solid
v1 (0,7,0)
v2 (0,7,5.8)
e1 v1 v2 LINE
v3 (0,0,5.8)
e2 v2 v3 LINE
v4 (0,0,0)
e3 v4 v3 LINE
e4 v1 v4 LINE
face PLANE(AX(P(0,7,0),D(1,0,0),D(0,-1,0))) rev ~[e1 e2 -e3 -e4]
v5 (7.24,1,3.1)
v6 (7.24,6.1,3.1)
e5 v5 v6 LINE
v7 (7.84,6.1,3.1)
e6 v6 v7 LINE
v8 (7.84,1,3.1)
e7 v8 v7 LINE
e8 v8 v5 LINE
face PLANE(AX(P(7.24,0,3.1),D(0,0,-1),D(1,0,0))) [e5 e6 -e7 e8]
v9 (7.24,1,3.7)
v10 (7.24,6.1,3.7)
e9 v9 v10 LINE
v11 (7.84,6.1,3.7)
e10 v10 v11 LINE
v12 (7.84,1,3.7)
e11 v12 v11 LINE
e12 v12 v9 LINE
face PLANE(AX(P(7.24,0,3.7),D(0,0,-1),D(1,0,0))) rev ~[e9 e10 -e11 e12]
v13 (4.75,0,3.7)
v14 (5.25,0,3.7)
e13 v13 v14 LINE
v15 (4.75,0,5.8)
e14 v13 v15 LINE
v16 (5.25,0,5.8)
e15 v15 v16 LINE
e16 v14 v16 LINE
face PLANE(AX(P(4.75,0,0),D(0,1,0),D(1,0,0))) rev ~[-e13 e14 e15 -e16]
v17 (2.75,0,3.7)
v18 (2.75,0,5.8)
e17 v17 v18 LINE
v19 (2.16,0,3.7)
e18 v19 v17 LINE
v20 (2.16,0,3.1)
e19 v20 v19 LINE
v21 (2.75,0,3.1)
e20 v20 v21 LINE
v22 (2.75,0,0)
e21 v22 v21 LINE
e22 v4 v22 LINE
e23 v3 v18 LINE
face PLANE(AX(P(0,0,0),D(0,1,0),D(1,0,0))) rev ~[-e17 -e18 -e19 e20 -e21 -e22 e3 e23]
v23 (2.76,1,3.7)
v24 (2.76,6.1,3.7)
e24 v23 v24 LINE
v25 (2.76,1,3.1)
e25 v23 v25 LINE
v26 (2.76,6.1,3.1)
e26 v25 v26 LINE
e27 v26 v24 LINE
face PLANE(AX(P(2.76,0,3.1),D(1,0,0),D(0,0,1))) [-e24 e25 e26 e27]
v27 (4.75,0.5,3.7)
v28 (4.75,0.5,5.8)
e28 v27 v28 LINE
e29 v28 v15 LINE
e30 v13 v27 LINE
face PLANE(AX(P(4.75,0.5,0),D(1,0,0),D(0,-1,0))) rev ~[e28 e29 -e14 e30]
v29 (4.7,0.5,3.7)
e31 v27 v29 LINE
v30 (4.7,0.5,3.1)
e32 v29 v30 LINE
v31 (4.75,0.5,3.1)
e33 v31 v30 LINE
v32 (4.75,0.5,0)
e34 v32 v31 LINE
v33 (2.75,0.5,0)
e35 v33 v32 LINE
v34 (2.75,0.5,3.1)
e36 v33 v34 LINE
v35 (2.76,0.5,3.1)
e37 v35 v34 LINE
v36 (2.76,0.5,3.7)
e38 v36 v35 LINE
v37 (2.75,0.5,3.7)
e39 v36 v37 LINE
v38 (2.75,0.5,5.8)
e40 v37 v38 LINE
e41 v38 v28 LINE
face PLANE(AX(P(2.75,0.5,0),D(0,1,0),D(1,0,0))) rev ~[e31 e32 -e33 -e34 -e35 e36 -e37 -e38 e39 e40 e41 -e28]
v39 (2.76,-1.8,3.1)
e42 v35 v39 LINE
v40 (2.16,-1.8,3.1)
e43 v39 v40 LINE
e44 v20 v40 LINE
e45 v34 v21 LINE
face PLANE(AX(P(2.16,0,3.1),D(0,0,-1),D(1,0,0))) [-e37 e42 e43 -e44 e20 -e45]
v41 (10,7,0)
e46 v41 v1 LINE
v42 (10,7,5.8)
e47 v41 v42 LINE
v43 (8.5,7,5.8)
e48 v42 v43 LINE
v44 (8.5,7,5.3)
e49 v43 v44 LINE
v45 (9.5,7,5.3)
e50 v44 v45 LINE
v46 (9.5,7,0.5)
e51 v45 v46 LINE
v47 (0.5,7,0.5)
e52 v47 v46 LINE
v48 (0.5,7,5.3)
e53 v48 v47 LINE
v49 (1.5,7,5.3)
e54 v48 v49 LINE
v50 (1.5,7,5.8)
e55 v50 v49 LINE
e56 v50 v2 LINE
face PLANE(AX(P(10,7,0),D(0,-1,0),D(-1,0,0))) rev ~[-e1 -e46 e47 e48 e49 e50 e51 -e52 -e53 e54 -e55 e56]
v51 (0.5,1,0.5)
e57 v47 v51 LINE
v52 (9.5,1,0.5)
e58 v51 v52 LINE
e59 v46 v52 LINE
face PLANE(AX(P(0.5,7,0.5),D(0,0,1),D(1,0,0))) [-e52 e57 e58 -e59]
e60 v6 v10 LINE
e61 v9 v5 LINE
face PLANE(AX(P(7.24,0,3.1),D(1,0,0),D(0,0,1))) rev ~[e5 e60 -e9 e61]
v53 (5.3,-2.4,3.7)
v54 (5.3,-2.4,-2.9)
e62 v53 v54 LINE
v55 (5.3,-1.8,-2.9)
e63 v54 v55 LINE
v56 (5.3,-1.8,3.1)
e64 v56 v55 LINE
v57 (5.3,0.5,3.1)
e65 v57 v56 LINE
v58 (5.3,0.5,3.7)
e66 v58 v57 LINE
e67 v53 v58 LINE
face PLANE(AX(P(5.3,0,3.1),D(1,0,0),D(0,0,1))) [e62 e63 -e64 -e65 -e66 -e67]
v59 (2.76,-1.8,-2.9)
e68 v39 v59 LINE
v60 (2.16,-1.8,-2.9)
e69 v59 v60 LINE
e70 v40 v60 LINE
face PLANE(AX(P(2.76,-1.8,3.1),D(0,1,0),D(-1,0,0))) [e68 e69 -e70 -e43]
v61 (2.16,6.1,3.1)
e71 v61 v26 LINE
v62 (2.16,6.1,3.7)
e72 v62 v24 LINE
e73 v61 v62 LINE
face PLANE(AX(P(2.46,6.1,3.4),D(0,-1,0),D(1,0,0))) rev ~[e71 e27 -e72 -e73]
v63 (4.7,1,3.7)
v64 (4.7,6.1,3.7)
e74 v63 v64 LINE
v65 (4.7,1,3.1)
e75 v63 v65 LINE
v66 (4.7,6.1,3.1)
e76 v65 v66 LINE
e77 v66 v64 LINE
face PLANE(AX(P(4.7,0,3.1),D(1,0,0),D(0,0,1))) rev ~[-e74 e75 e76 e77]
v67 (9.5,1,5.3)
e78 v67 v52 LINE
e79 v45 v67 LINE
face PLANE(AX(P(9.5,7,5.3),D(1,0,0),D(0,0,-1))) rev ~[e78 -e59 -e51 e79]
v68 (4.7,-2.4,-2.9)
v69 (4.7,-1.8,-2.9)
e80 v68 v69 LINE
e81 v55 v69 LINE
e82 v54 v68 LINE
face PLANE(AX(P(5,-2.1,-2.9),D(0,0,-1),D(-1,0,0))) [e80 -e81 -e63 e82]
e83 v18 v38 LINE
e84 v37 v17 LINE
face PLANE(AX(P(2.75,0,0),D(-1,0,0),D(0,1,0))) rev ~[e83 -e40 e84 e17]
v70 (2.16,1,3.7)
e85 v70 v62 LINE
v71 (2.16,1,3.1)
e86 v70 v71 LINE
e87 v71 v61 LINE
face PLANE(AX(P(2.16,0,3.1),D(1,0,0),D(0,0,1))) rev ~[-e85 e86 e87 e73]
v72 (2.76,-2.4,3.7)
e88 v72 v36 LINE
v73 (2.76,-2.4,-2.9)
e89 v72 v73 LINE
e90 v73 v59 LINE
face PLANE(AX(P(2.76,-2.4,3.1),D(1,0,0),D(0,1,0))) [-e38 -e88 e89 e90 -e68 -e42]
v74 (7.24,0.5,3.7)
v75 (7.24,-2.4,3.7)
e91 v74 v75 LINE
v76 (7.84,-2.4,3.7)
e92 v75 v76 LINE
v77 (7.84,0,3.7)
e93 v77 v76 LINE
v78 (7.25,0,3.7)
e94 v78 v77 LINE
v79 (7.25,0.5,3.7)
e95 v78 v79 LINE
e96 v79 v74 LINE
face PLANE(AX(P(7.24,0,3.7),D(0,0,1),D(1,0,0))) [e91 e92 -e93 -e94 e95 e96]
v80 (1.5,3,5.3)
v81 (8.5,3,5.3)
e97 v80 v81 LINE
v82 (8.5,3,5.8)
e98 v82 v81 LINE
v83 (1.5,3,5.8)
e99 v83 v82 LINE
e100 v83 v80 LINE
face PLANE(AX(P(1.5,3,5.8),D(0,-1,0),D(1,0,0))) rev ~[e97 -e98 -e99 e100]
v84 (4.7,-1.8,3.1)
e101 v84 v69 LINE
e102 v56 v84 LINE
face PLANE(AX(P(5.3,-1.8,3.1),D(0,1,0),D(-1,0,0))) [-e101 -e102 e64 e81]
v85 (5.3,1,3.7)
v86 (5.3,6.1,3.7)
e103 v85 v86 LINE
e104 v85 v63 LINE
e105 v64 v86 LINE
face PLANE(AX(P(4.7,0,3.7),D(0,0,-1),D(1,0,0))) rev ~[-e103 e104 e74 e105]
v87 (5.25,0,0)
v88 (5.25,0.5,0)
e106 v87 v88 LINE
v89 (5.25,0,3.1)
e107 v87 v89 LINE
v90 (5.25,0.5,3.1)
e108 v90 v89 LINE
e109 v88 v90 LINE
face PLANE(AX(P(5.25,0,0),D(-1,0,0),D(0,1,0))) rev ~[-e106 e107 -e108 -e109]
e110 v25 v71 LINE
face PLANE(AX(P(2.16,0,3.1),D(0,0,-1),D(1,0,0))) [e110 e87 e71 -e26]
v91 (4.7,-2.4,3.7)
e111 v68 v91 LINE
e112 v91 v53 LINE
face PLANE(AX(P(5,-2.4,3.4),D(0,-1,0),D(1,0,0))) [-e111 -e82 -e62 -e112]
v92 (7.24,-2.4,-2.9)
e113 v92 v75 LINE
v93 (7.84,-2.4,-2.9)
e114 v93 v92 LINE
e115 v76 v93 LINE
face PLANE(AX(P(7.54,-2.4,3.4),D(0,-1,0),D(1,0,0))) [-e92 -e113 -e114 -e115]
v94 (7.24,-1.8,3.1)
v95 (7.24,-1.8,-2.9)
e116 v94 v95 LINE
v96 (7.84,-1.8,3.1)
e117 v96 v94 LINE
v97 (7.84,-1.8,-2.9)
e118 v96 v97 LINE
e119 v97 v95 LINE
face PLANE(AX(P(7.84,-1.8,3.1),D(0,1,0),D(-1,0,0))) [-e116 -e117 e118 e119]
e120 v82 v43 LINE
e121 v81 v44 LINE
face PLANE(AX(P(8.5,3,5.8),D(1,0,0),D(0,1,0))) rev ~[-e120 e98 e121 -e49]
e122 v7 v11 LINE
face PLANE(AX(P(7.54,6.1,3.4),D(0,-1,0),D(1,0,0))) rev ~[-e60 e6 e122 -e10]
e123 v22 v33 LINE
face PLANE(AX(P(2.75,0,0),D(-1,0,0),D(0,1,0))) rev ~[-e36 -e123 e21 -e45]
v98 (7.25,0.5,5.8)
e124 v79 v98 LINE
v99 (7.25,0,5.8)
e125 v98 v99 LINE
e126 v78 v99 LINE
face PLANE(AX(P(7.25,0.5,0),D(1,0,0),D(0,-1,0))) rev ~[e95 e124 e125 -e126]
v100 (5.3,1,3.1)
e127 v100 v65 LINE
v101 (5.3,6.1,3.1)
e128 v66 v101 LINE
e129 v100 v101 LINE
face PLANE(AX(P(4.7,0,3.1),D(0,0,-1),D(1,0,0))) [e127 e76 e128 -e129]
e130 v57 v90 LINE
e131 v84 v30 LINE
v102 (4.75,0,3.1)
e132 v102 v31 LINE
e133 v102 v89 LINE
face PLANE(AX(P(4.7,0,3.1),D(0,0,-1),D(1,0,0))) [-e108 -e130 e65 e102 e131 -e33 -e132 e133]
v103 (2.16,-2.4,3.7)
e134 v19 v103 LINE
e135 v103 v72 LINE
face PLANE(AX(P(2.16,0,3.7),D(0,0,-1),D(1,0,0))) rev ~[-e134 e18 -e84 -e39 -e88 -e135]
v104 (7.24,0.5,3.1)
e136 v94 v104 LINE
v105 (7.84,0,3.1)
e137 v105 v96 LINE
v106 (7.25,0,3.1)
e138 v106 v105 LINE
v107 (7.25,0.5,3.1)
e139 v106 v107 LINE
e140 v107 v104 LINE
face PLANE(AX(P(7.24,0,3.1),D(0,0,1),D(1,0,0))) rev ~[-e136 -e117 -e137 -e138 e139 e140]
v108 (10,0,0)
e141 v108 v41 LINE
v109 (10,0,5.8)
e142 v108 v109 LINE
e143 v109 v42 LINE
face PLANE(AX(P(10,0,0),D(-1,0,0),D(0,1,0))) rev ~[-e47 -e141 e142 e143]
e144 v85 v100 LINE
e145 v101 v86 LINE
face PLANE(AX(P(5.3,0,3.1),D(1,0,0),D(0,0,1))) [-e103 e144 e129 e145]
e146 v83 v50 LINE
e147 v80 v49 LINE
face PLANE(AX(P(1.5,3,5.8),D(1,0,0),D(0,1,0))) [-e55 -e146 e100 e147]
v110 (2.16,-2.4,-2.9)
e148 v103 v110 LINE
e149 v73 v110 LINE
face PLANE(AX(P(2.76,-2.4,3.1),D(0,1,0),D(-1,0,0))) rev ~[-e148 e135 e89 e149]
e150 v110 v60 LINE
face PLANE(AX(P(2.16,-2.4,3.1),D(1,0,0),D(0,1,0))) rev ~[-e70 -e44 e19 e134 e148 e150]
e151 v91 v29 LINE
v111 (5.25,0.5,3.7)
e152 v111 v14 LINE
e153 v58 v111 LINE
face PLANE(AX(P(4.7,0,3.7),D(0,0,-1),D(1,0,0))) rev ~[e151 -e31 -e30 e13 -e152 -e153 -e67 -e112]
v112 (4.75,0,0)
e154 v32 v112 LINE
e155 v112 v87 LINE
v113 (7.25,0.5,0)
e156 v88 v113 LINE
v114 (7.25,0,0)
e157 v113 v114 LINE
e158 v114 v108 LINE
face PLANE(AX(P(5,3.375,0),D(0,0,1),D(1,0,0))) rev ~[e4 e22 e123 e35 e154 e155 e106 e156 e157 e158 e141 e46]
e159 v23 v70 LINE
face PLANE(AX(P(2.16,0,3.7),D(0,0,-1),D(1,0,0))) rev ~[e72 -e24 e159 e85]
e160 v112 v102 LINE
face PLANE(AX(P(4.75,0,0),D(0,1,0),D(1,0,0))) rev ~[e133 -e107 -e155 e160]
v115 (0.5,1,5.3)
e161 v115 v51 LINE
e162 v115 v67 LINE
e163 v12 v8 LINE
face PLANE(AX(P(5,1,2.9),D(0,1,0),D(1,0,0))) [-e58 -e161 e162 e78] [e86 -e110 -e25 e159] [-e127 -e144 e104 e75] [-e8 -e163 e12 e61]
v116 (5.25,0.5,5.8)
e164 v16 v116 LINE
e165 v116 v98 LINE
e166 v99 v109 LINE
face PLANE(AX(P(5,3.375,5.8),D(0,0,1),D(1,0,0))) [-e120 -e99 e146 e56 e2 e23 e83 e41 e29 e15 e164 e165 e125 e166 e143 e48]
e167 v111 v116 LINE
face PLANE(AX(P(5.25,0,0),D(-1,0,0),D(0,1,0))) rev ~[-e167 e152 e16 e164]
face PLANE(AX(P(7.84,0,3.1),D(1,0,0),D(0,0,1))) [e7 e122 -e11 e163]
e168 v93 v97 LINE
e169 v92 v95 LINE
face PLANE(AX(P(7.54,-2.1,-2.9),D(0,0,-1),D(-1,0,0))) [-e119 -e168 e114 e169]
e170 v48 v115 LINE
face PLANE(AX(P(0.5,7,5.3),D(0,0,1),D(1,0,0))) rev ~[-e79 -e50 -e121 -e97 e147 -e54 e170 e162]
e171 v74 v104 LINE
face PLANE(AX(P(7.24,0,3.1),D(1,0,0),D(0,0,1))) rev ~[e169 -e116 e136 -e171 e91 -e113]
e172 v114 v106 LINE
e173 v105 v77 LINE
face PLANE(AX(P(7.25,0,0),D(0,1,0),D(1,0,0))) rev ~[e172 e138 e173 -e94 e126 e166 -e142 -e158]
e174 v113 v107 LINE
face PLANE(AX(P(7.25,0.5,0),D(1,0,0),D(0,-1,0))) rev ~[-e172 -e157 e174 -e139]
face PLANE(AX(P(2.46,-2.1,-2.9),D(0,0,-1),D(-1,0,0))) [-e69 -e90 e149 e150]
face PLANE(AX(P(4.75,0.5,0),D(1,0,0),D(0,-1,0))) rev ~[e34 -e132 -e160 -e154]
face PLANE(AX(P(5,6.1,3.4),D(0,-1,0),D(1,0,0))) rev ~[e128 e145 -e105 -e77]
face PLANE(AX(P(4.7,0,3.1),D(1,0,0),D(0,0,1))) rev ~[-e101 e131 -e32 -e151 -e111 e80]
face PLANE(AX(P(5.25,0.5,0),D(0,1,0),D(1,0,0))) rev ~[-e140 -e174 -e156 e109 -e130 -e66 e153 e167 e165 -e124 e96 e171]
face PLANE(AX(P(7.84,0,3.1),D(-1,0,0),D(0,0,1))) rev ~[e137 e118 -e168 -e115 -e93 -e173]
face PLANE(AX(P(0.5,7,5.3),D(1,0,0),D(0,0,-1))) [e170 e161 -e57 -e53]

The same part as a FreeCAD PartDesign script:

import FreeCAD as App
import Part
import Sketcher

doc = App.newDocument("Part")
body = doc.addObject("PartDesign::Body", "Body")

# Sketch on XY plane
sketch1 = doc.addObject("Sketcher::SketchObject", "Sketch")
body.addObject(sketch1)
sketch1.AttachmentSupport = (doc.XY_Plane, [""])
sketch1.MapMode = "FlatFace"
sketch1.addGeometry([
    Part.LineSegment(App.Vector(2.75, 0, 0), App.Vector(2.75, 0.5, 0)),  # 0
    Part.LineSegment(App.Vector(2.75, 0.5, 0), App.Vector(4.75, 0.5, 0)),  # 1
    Part.LineSegment(App.Vector(4.75, 0.5, 0), App.Vector(4.75, 0, 0)),  # 2
    Part.LineSegment(App.Vector(4.75, 0, 0), App.Vector(5.25, 0, 0)),  # 3
    Part.LineSegment(App.Vector(5.25, 0, 0), App.Vector(5.25, 0.5, 0)),  # 4
    Part.LineSegment(App.Vector(5.25, 0.5, 0), App.Vector(7.25, 0.5, 0)),  # 5
    Part.LineSegment(App.Vector(7.25, 0.5, 0), App.Vector(7.25, 0, 0)),  # 6
    Part.LineSegment(App.Vector(7.25, 0, 0), App.Vector(10, 0, 0)),  # 7
    Part.LineSegment(App.Vector(10, 0, 0), App.Vector(10, 7, 0)),  # 8
    Part.LineSegment(App.Vector(10, 7, 0), App.Vector(0, 7, 0)),  # 9
    Part.LineSegment(App.Vector(0, 7, 0), App.Vector(0, 0, 0)),  # 10
    Part.LineSegment(App.Vector(0, 0, 0), App.Vector(2.75, 0, 0)),  # 11
], False)
sketch1.addConstraint([
    Sketcher.Constraint("Coincident", 0, 2, 1, 1),
    Sketcher.Constraint("Coincident", 1, 2, 2, 1),
    Sketcher.Constraint("Coincident", 2, 2, 3, 1),
    Sketcher.Constraint("Coincident", 3, 2, 4, 1),
    Sketcher.Constraint("Coincident", 4, 2, 5, 1),
    Sketcher.Constraint("Coincident", 5, 2, 6, 1),
    Sketcher.Constraint("Coincident", 6, 2, 7, 1),
    Sketcher.Constraint("Coincident", 7, 2, 8, 1),
    Sketcher.Constraint("Coincident", 8, 2, 9, 1),
    Sketcher.Constraint("Coincident", 9, 2, 10, 1),
    Sketcher.Constraint("Coincident", 10, 2, 11, 1),
    Sketcher.Constraint("Coincident", 11, 2, 0, 1),
    Sketcher.Constraint("Vertical", 0),
    Sketcher.Constraint("Horizontal", 1),
    Sketcher.Constraint("Vertical", 2),
    Sketcher.Constraint("Horizontal", 3),
    Sketcher.Constraint("Vertical", 4),
    Sketcher.Constraint("Horizontal", 5),
    Sketcher.Constraint("Vertical", 6),
    Sketcher.Constraint("Horizontal", 7),
    Sketcher.Constraint("Vertical", 8),
    Sketcher.Constraint("Horizontal", 9),
    Sketcher.Constraint("Vertical", 10),
    Sketcher.Constraint("Horizontal", 11),
    Sketcher.Constraint("Coincident", 10, 2, -1, 1),
    Sketcher.Constraint("PointOnObject", 2, 2, -1),
    Sketcher.Constraint("PointOnObject", 6, 2, -1),
    Sketcher.Constraint("Horizontal", 1, 2, 4, 2),
    Sketcher.Constraint("Equal", 1, 5),
    Sketcher.Constraint("Equal", 7, 11),
    Sketcher.Constraint("Equal", 3, 0),
    Sketcher.Constraint("DistanceX", 1, 1, 1, 2, 2.0),
    Sketcher.Constraint("DistanceX", 9, 2, 9, 1, 10.0),
    Sketcher.Constraint("DistanceY", 8, 1, 8, 2, 7.0),
    Sketcher.Constraint("DistanceX", 3, 1, 3, 2, 0.5),
])
pad1 = doc.addObject("PartDesign::Pad", "Pad")
body.addObject(pad1)
pad1.Profile = sketch1
pad1.Length = 5.8

# Sketch on XZ plane
sketch2 = doc.addObject("Sketcher::SketchObject", "Sketch001")
body.addObject(sketch2)
sketch2.AttachmentSupport = (doc.XZ_Plane, [""])
sketch2.MapMode = "FlatFace"
sketch2.AttachmentOffset = App.Placement(App.Vector(0, 0, -7), App.Rotation())
sketch2.addGeometry([
    Part.LineSegment(App.Vector(0.5, 0.5, 0), App.Vector(0.5, 5.3, 0)),
    Part.LineSegment(App.Vector(0.5, 5.3, 0), App.Vector(9.5, 5.3, 0)),
    Part.LineSegment(App.Vector(9.5, 5.3, 0), App.Vector(9.5, 0.5, 0)),
    Part.LineSegment(App.Vector(9.5, 0.5, 0), App.Vector(0.5, 0.5, 0)),
], False)
sketch2.addConstraint([
    Sketcher.Constraint("Coincident", 0, 2, 1, 1),
    Sketcher.Constraint("Coincident", 1, 2, 2, 1),
    Sketcher.Constraint("Coincident", 2, 2, 3, 1),
    Sketcher.Constraint("Coincident", 3, 2, 0, 1),
    Sketcher.Constraint("Vertical", 0),
    Sketcher.Constraint("Horizontal", 1),
    Sketcher.Constraint("Vertical", 2),
    Sketcher.Constraint("Horizontal", 3),
    Sketcher.Constraint("DistanceX", 1, 1, 1, 2, 9.0),
    Sketcher.Constraint("DistanceY", 0, 1, 0, 2, 4.8),
    Sketcher.Constraint("DistanceX", -1, 1, 0, 2, 0.5),
    Sketcher.Constraint("DistanceY", -1, 1, 0, 2, 5.3),
])
pocket1 = doc.addObject("PartDesign::Pocket", "Pocket")
body.addObject(pocket1)
pocket1.Profile = sketch2
pocket1.Length = 6
pocket1.Reversed = True

# Sketch on XZ plane
sketch3 = doc.addObject("Sketcher::SketchObject", "Sketch002")
body.addObject(sketch3)
sketch3.AttachmentSupport = (doc.XZ_Plane, [""])
sketch3.MapMode = "FlatFace"
sketch3.addGeometry([
    Part.LineSegment(App.Vector(2.16, 3.7, 0), App.Vector(2.16, 3.1, 0)),  # 0
    Part.LineSegment(App.Vector(2.16, 3.1, 0), App.Vector(2.76, 3.1, 0)),  # 1
    Part.LineSegment(App.Vector(2.76, 3.1, 0), App.Vector(2.76, 3.7, 0)),  # 2
    Part.LineSegment(App.Vector(2.76, 3.7, 0), App.Vector(2.16, 3.7, 0)),  # 3
    Part.LineSegment(App.Vector(4.7, 3.7, 0), App.Vector(4.7, 3.1, 0)),  # 4
    Part.LineSegment(App.Vector(4.7, 3.1, 0), App.Vector(5.3, 3.1, 0)),  # 5
    Part.LineSegment(App.Vector(5.3, 3.1, 0), App.Vector(5.3, 3.7, 0)),  # 6
    Part.LineSegment(App.Vector(5.3, 3.7, 0), App.Vector(4.7, 3.7, 0)),  # 7
    Part.LineSegment(App.Vector(7.24, 3.7, 0), App.Vector(7.24, 3.1, 0)),  # 8
    Part.LineSegment(App.Vector(7.24, 3.1, 0), App.Vector(7.84, 3.1, 0)),  # 9
    Part.LineSegment(App.Vector(7.84, 3.1, 0), App.Vector(7.84, 3.7, 0)),  # 10
    Part.LineSegment(App.Vector(7.84, 3.7, 0), App.Vector(7.24, 3.7, 0)),  # 11
], False)
sketch3.addConstraint([
    Sketcher.Constraint("Coincident", 0, 2, 1, 1),
    Sketcher.Constraint("Coincident", 1, 2, 2, 1),
    Sketcher.Constraint("Coincident", 2, 2, 3, 1),
    Sketcher.Constraint("Coincident", 3, 2, 0, 1),
    Sketcher.Constraint("Coincident", 4, 2, 5, 1),
    Sketcher.Constraint("Coincident", 5, 2, 6, 1),
    Sketcher.Constraint("Coincident", 6, 2, 7, 1),
    Sketcher.Constraint("Coincident", 7, 2, 4, 1),
    Sketcher.Constraint("Coincident", 8, 2, 9, 1),
    Sketcher.Constraint("Coincident", 9, 2, 10, 1),
    Sketcher.Constraint("Coincident", 10, 2, 11, 1),
    Sketcher.Constraint("Coincident", 11, 2, 8, 1),
    Sketcher.Constraint("Vertical", 0),
    Sketcher.Constraint("Horizontal", 1),
    Sketcher.Constraint("Vertical", 2),
    Sketcher.Constraint("Horizontal", 3),
    Sketcher.Constraint("Vertical", 4),
    Sketcher.Constraint("Horizontal", 5),
    Sketcher.Constraint("Vertical", 6),
    Sketcher.Constraint("Horizontal", 7),
    Sketcher.Constraint("Vertical", 8),
    Sketcher.Constraint("Horizontal", 9),
    Sketcher.Constraint("Vertical", 10),
    Sketcher.Constraint("Horizontal", 11),
    Sketcher.Constraint("Horizontal", 1, 2, 4, 2),
    Sketcher.Constraint("Horizontal", 3, 2, 6, 2),
    Sketcher.Constraint("Horizontal", 5, 2, 8, 2),
    Sketcher.Constraint("Horizontal", 7, 2, 10, 2),
    Sketcher.Constraint("Equal", 3, 5),
    Sketcher.Constraint("Equal", 7, 9),
    Sketcher.Constraint("Equal", 11, 0),
    Sketcher.Constraint("DistanceX", 1, 1, 1, 2, 0.6),
    Sketcher.Constraint("DistanceY", -1, 1, 0, 2, 3.1),
    Sketcher.Constraint("DistanceX", -1, 1, 4, 2, 4.7),
    Sketcher.Constraint("DistanceX", -1, 1, 0, 2, 2.16),
    Sketcher.Constraint("DistanceX", -1, 1, 8, 2, 7.24),
])
pad2 = doc.addObject("PartDesign::Pad", "Pad001")
body.addObject(pad2)
pad2.Profile = sketch3
pad2.Type = "TwoLengths"
pad2.Length = 2.4
pad2.Length2 = 6.1

# Sketch on XY plane
sketch4 = doc.addObject("Sketcher::SketchObject", "Sketch003")
body.addObject(sketch4)
sketch4.AttachmentSupport = (doc.XY_Plane, [""])
sketch4.MapMode = "FlatFace"
sketch4.AttachmentOffset = App.Placement(App.Vector(0, 0, 5.8), App.Rotation())
sketch4.addGeometry([
    Part.LineSegment(App.Vector(1.5, 7, 0), App.Vector(1.5, 3, 0)),
    Part.LineSegment(App.Vector(1.5, 3, 0), App.Vector(8.5, 3, 0)),
    Part.LineSegment(App.Vector(8.5, 3, 0), App.Vector(8.5, 7, 0)),
    Part.LineSegment(App.Vector(8.5, 7, 0), App.Vector(1.5, 7, 0)),
], False)
sketch4.addConstraint([
    Sketcher.Constraint("Coincident", 0, 2, 1, 1),
    Sketcher.Constraint("Coincident", 1, 2, 2, 1),
    Sketcher.Constraint("Coincident", 2, 2, 3, 1),
    Sketcher.Constraint("Coincident", 3, 2, 0, 1),
    Sketcher.Constraint("Vertical", 0),
    Sketcher.Constraint("Horizontal", 1),
    Sketcher.Constraint("Vertical", 2),
    Sketcher.Constraint("Horizontal", 3),
    Sketcher.Constraint("DistanceX", 1, 1, 1, 2, 7.0),
    Sketcher.Constraint("DistanceY", 0, 2, 0, 1, 4.0),
    Sketcher.Constraint("DistanceY", -1, 1, 0, 2, 3.0),
    Sketcher.Constraint("DistanceX", -1, 1, 0, 2, 1.5),
])
pocket2 = doc.addObject("PartDesign::Pocket", "Pocket001")
body.addObject(pocket2)
pocket2.Profile = sketch4
pocket2.Length = 1

# Sketch on XY plane
sketch5 = doc.addObject("Sketcher::SketchObject", "Sketch004")
body.addObject(sketch5)
sketch5.AttachmentSupport = (doc.XY_Plane, [""])
sketch5.MapMode = "FlatFace"
sketch5.AttachmentOffset = App.Placement(App.Vector(0, 0, 3.1), App.Rotation())
sketch5.addGeometry([
    Part.LineSegment(App.Vector(2.76, -1.8, 0), App.Vector(2.76, -2.4, 0)),  # 0
    Part.LineSegment(App.Vector(2.76, -2.4, 0), App.Vector(2.16, -2.4, 0)),  # 1
    Part.LineSegment(App.Vector(2.16, -2.4, 0), App.Vector(2.16, -1.8, 0)),  # 2
    Part.LineSegment(App.Vector(2.16, -1.8, 0), App.Vector(2.76, -1.8, 0)),  # 3
    Part.LineSegment(App.Vector(5.3, -1.8, 0), App.Vector(5.3, -2.4, 0)),  # 4
    Part.LineSegment(App.Vector(5.3, -2.4, 0), App.Vector(4.7, -2.4, 0)),  # 5
    Part.LineSegment(App.Vector(4.7, -2.4, 0), App.Vector(4.7, -1.8, 0)),  # 6
    Part.LineSegment(App.Vector(4.7, -1.8, 0), App.Vector(5.3, -1.8, 0)),  # 7
    Part.LineSegment(App.Vector(7.84, -1.8, 0), App.Vector(7.84, -2.4, 0)),  # 8
    Part.LineSegment(App.Vector(7.84, -2.4, 0), App.Vector(7.24, -2.4, 0)),  # 9
    Part.LineSegment(App.Vector(7.24, -2.4, 0), App.Vector(7.24, -1.8, 0)),  # 10
    Part.LineSegment(App.Vector(7.24, -1.8, 0), App.Vector(7.84, -1.8, 0)),  # 11
], False)
sketch5.addConstraint([
    Sketcher.Constraint("Coincident", 0, 2, 1, 1),
    Sketcher.Constraint("Coincident", 1, 2, 2, 1),
    Sketcher.Constraint("Coincident", 2, 2, 3, 1),
    Sketcher.Constraint("Coincident", 3, 2, 0, 1),
    Sketcher.Constraint("Coincident", 4, 2, 5, 1),
    Sketcher.Constraint("Coincident", 5, 2, 6, 1),
    Sketcher.Constraint("Coincident", 6, 2, 7, 1),
    Sketcher.Constraint("Coincident", 7, 2, 4, 1),
    Sketcher.Constraint("Coincident", 8, 2, 9, 1),
    Sketcher.Constraint("Coincident", 9, 2, 10, 1),
    Sketcher.Constraint("Coincident", 10, 2, 11, 1),
    Sketcher.Constraint("Coincident", 11, 2, 8, 1),
    Sketcher.Constraint("Vertical", 0),
    Sketcher.Constraint("Horizontal", 1),
    Sketcher.Constraint("Vertical", 2),
    Sketcher.Constraint("Horizontal", 3),
    Sketcher.Constraint("Vertical", 4),
    Sketcher.Constraint("Horizontal", 5),
    Sketcher.Constraint("Vertical", 6),
    Sketcher.Constraint("Horizontal", 7),
    Sketcher.Constraint("Vertical", 8),
    Sketcher.Constraint("Horizontal", 9),
    Sketcher.Constraint("Vertical", 10),
    Sketcher.Constraint("Horizontal", 11),
    Sketcher.Constraint("Horizontal", 1, 2, 4, 2),
    Sketcher.Constraint("Horizontal", 3, 2, 6, 2),
    Sketcher.Constraint("Horizontal", 5, 2, 8, 2),
    Sketcher.Constraint("Horizontal", 7, 2, 10, 2),
    Sketcher.Constraint("Equal", 3, 5),
    Sketcher.Constraint("Equal", 7, 9),
    Sketcher.Constraint("Equal", 11, 0),
    Sketcher.Constraint("DistanceX", 1, 2, 1, 1, 0.6),
    Sketcher.Constraint("DistanceY", 0, 2, -1, 1, 2.4),
    Sketcher.Constraint("DistanceX", -1, 1, 4, 2, 5.3),
    Sketcher.Constraint("DistanceX", -1, 1, 0, 2, 2.76),
    Sketcher.Constraint("DistanceX", -1, 1, 8, 2, 7.84),
])
pad3 = doc.addObject("PartDesign::Pad", "Pad002")
body.addObject(pad3)
pad3.Profile = sketch5
pad3.Length = 6
pad3.Reversed = True

doc.recompute()
